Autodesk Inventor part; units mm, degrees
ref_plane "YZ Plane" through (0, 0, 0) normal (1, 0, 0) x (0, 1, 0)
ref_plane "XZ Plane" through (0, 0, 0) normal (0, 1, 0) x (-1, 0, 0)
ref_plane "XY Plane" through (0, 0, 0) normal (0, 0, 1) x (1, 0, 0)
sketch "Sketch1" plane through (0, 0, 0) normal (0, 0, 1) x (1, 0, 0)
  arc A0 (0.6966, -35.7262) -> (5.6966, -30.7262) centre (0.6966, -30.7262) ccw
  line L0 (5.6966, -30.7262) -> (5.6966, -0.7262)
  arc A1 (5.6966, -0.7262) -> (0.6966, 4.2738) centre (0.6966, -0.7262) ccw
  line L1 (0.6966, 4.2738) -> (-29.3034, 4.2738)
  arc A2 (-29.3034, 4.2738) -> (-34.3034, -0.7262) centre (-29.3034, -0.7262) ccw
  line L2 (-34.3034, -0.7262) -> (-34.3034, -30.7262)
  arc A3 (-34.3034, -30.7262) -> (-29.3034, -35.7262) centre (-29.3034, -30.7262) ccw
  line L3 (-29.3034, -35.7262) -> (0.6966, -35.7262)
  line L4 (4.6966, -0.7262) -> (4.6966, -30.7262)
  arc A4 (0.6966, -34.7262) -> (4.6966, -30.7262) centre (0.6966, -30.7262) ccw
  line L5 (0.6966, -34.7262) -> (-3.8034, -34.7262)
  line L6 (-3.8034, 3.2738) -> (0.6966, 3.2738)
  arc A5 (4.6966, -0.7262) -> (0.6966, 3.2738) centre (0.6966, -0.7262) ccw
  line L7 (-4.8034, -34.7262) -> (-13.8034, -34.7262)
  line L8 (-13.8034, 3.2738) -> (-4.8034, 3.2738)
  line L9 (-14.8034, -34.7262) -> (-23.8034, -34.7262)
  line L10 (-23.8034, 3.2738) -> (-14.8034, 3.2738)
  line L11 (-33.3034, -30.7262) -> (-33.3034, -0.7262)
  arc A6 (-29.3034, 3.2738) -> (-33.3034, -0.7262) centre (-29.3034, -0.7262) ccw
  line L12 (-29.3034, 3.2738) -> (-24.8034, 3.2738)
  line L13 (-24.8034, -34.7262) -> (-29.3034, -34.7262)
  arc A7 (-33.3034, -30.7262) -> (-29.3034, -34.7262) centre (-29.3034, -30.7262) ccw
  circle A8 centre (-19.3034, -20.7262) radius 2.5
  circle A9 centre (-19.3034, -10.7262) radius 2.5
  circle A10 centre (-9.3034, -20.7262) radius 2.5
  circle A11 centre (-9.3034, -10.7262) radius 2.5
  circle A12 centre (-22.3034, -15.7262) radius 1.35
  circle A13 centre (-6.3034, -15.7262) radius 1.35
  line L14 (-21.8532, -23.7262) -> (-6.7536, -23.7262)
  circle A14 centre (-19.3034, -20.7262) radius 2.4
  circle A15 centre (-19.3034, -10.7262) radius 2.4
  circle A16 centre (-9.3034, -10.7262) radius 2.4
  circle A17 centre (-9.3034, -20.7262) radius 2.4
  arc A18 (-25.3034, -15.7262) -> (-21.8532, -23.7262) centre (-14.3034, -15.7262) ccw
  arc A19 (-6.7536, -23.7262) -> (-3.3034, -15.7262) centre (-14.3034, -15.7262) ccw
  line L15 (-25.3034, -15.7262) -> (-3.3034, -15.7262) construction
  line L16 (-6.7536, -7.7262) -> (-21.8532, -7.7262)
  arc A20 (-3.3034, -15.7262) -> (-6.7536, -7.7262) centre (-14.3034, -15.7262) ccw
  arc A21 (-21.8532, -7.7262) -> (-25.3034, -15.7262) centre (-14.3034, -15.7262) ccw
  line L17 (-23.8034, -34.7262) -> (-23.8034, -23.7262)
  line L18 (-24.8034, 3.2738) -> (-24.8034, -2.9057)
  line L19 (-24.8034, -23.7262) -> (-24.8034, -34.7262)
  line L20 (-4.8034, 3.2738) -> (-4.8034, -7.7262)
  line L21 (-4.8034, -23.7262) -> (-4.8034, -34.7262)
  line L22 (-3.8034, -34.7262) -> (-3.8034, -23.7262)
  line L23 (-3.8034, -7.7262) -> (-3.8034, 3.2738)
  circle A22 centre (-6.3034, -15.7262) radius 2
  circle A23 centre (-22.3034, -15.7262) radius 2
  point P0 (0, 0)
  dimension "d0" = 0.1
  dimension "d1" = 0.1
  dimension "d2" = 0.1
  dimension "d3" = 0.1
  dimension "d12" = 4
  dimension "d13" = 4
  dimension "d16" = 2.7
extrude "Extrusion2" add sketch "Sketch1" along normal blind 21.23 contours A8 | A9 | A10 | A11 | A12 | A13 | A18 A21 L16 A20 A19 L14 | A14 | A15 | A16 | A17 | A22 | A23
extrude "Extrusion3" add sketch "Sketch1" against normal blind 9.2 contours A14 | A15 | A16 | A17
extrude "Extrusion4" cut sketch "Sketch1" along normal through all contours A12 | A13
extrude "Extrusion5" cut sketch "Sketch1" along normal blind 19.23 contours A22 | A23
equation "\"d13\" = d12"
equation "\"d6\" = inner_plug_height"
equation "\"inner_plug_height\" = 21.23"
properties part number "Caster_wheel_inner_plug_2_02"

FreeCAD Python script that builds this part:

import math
import FreeCAD as App
import Part
import Sketcher

doc = App.newDocument("Part")
body = doc.addObject("PartDesign::Body", "Body")

sketch1 = body.newObject("Sketcher::SketchObject", "Sketch")
sketch1.AttachmentSupport = (doc.getObject("XY_Plane"), [""])
sketch1.MapMode = "FlatFace"
sketch1.addGeometry([
    Part.ArcOfCircle(Part.Circle(App.Vector(-14.3034, -15.7262, 0), App.Vector(0, 0, 1), 10.999976), math.radians(180), math.radians(226.658372)),
    Part.LineSegment(App.Vector(-21.8532, -23.7262, 0), App.Vector(-6.7536, -23.7262, 0)),
    Part.ArcOfCircle(Part.Circle(App.Vector(-14.3034, -15.7262, 0), App.Vector(0, 0, 1), 11), math.radians(-46.658372), math.radians(0)),
    Part.ArcOfCircle(Part.Circle(App.Vector(-14.3034, -15.7262, 0), App.Vector(0, 0, 1), 10.999976), math.radians(0), math.radians(46.658372)),
    Part.LineSegment(App.Vector(-6.7536, -7.7262, 0), App.Vector(-21.8532, -7.7262, 0)),
    Part.ArcOfCircle(Part.Circle(App.Vector(-14.3034, -15.7262, 0), App.Vector(0, 0, 1), 11), math.radians(133.341628), math.radians(180)),
], False)
sketch1.addConstraint([
    Sketcher.Constraint("Coincident", 0, 2, 1, 1),
    Sketcher.Constraint("Coincident", 1, 2, 2, 1),
    Sketcher.Constraint("Tangent", 2, 2, 3, 1),
    Sketcher.Constraint("Coincident", 3, 2, 4, 1),
    Sketcher.Constraint("Coincident", 4, 2, 5, 1),
    Sketcher.Constraint("Tangent", 5, 2, 0, 1),
    Sketcher.Constraint("Horizontal", 1),
    Sketcher.Constraint("Horizontal", 4),
    Sketcher.Constraint("Coincident", 2, 3, 0, 3),
    Sketcher.Constraint("Equal", 0, 2),
    Sketcher.Constraint("Equal", 2, 3),
    Sketcher.Constraint("Equal", 3, 5),
    Sketcher.Constraint("Horizontal", 5, 3, 2, 2),
    Sketcher.Constraint("Horizontal", 2, 2, 5, 2),
    Sketcher.Constraint("Vertical", 1, 2, 3, 2),
    Sketcher.Constraint("Radius", 0, 11.0),
    Sketcher.Constraint("DistanceY", 0, 2, 0, 3, 8.0),
    Sketcher.Constraint("DistanceX", 0, 3, -1, 1, 14.3034),
    Sketcher.Constraint("DistanceY", 0, 3, -1, 1, 15.7262),
])
pad1 = body.newObject("PartDesign::Pad", "Pad")
pad1.Profile = sketch1
pad1.Length = 21.23

sketch2 = body.newObject("Sketcher::SketchObject", "Sketch001")
sketch2.AttachmentSupport = (doc.getObject("XY_Plane"), [""])
sketch2.MapMode = "FlatFace"
sketch2.addGeometry([
    Part.Circle(App.Vector(-19.3034, -20.7262, 0), App.Vector(0, 0, 1), 2.4),
    Part.Circle(App.Vector(-19.3034, -10.7262, 0), App.Vector(0, 0, 1), 2.4),
    Part.Circle(App.Vector(-9.3034, -10.7262, 0), App.Vector(0, 0, 1), 2.4),
    Part.Circle(App.Vector(-9.3034, -20.7262, 0), App.Vector(0, 0, 1), 2.4),
], False)
sketch2.addConstraint([
    Sketcher.Constraint("Equal", 0, 1),
    Sketcher.Constraint("Equal", 1, 2),
    Sketcher.Constraint("Equal", 2, 3),
    Sketcher.Constraint("Horizontal", 1, 3, 2, 3),
    Sketcher.Constraint("Horizontal", 0, 3, 3, 3),
    Sketcher.Constraint("Vertical", 0, 3, 1, 3),
    Sketcher.Constraint("Vertical", 2, 3, 3, 3),
    Sketcher.Constraint("Diameter", 0, 4.8),
    Sketcher.Constraint("DistanceY", 0, 3, 1, 3, 10.0),
    Sketcher.Constraint("DistanceX", 1, 3, 2, 3, 10.0),
    Sketcher.Constraint("DistanceX", 0, 3, -1, 1, 19.3034),
    Sketcher.Constraint("DistanceY", 0, 3, -1, 1, 20.7262),
])
pad2 = body.newObject("PartDesign::Pad", "Pad001")
pad2.Profile = sketch2
pad2.Length = 9.2
pad2.Reversed = True

sketch3 = body.newObject("Sketcher::SketchObject", "Sketch002")
sketch3.AttachmentSupport = (doc.getObject("XY_Plane"), [""])
sketch3.MapMode = "FlatFace"
sketch3.addGeometry([
    Part.Circle(App.Vector(-22.3034, -15.7262, 0), App.Vector(0, 0, 1), 1.35),
    Part.Circle(App.Vector(-6.3034, -15.7262, 0), App.Vector(0, 0, 1), 1.35),
], False)
sketch3.addConstraint([
    Sketcher.Constraint("Equal", 0, 1),
    Sketcher.Constraint("Horizontal", 0, 3, 1, 3),
    Sketcher.Constraint("Diameter", 0, 2.7),
    Sketcher.Constraint("DistanceX", 0, 3, 1, 3, 16.0),
    Sketcher.Constraint("DistanceX", 0, 3, -1, 1, 22.3034),
    Sketcher.Constraint("DistanceY", 0, 3, -1, 1, 15.7262),
])
pocket1 = body.newObject("PartDesign::Pocket", "Pocket")
pocket1.Profile = sketch3
pocket1.Type = "ThroughAll"
pocket1.Reversed = True

sketch4 = body.newObject("Sketcher::SketchObject", "Sketch003")
sketch4.AttachmentSupport = (doc.getObject("XY_Plane"), [""])
sketch4.MapMode = "FlatFace"
sketch4.addGeometry([
    Part.Circle(App.Vector(-6.3034, -15.7262, 0), App.Vector(0, 0, 1), 2),
    Part.Circle(App.Vector(-6.3034, -15.7262, 0), App.Vector(0, 0, 1), 1.35),
    Part.Circle(App.Vector(-22.3034, -15.7262, 0), App.Vector(0, 0, 1), 2),
    Part.Circle(App.Vector(-22.3034, -15.7262, 0), App.Vector(0, 0, 1), 1.35),
], False)
sketch4.addConstraint([
    Sketcher.Constraint("Coincident", 1, 3, 0, 3),
    Sketcher.Constraint("Coincident", 3, 3, 2, 3),
    Sketcher.Constraint("Equal", 0, 2),
    Sketcher.Constraint("Equal", 1, 3),
    Sketcher.Constraint("Horizontal", 1, 3, 2, 3),
    Sketcher.Constraint("Diameter", 0, 4.0),
    Sketcher.Constraint("Diameter", 1, 2.7),
    Sketcher.Constraint("DistanceX", 2, 3, 0, 3, 16.0),
    Sketcher.Constraint("DistanceX", 0, 3, -1, 1, 6.3034),
    Sketcher.Constraint("DistanceY", 0, 3, -1, 1, 15.7262),
])
pocket2 = body.newObject("PartDesign::Pocket", "Pocket001")
pocket2.Profile = sketch4
pocket2.Length = 19.23
pocket2.Reversed = True

doc.recompute()
